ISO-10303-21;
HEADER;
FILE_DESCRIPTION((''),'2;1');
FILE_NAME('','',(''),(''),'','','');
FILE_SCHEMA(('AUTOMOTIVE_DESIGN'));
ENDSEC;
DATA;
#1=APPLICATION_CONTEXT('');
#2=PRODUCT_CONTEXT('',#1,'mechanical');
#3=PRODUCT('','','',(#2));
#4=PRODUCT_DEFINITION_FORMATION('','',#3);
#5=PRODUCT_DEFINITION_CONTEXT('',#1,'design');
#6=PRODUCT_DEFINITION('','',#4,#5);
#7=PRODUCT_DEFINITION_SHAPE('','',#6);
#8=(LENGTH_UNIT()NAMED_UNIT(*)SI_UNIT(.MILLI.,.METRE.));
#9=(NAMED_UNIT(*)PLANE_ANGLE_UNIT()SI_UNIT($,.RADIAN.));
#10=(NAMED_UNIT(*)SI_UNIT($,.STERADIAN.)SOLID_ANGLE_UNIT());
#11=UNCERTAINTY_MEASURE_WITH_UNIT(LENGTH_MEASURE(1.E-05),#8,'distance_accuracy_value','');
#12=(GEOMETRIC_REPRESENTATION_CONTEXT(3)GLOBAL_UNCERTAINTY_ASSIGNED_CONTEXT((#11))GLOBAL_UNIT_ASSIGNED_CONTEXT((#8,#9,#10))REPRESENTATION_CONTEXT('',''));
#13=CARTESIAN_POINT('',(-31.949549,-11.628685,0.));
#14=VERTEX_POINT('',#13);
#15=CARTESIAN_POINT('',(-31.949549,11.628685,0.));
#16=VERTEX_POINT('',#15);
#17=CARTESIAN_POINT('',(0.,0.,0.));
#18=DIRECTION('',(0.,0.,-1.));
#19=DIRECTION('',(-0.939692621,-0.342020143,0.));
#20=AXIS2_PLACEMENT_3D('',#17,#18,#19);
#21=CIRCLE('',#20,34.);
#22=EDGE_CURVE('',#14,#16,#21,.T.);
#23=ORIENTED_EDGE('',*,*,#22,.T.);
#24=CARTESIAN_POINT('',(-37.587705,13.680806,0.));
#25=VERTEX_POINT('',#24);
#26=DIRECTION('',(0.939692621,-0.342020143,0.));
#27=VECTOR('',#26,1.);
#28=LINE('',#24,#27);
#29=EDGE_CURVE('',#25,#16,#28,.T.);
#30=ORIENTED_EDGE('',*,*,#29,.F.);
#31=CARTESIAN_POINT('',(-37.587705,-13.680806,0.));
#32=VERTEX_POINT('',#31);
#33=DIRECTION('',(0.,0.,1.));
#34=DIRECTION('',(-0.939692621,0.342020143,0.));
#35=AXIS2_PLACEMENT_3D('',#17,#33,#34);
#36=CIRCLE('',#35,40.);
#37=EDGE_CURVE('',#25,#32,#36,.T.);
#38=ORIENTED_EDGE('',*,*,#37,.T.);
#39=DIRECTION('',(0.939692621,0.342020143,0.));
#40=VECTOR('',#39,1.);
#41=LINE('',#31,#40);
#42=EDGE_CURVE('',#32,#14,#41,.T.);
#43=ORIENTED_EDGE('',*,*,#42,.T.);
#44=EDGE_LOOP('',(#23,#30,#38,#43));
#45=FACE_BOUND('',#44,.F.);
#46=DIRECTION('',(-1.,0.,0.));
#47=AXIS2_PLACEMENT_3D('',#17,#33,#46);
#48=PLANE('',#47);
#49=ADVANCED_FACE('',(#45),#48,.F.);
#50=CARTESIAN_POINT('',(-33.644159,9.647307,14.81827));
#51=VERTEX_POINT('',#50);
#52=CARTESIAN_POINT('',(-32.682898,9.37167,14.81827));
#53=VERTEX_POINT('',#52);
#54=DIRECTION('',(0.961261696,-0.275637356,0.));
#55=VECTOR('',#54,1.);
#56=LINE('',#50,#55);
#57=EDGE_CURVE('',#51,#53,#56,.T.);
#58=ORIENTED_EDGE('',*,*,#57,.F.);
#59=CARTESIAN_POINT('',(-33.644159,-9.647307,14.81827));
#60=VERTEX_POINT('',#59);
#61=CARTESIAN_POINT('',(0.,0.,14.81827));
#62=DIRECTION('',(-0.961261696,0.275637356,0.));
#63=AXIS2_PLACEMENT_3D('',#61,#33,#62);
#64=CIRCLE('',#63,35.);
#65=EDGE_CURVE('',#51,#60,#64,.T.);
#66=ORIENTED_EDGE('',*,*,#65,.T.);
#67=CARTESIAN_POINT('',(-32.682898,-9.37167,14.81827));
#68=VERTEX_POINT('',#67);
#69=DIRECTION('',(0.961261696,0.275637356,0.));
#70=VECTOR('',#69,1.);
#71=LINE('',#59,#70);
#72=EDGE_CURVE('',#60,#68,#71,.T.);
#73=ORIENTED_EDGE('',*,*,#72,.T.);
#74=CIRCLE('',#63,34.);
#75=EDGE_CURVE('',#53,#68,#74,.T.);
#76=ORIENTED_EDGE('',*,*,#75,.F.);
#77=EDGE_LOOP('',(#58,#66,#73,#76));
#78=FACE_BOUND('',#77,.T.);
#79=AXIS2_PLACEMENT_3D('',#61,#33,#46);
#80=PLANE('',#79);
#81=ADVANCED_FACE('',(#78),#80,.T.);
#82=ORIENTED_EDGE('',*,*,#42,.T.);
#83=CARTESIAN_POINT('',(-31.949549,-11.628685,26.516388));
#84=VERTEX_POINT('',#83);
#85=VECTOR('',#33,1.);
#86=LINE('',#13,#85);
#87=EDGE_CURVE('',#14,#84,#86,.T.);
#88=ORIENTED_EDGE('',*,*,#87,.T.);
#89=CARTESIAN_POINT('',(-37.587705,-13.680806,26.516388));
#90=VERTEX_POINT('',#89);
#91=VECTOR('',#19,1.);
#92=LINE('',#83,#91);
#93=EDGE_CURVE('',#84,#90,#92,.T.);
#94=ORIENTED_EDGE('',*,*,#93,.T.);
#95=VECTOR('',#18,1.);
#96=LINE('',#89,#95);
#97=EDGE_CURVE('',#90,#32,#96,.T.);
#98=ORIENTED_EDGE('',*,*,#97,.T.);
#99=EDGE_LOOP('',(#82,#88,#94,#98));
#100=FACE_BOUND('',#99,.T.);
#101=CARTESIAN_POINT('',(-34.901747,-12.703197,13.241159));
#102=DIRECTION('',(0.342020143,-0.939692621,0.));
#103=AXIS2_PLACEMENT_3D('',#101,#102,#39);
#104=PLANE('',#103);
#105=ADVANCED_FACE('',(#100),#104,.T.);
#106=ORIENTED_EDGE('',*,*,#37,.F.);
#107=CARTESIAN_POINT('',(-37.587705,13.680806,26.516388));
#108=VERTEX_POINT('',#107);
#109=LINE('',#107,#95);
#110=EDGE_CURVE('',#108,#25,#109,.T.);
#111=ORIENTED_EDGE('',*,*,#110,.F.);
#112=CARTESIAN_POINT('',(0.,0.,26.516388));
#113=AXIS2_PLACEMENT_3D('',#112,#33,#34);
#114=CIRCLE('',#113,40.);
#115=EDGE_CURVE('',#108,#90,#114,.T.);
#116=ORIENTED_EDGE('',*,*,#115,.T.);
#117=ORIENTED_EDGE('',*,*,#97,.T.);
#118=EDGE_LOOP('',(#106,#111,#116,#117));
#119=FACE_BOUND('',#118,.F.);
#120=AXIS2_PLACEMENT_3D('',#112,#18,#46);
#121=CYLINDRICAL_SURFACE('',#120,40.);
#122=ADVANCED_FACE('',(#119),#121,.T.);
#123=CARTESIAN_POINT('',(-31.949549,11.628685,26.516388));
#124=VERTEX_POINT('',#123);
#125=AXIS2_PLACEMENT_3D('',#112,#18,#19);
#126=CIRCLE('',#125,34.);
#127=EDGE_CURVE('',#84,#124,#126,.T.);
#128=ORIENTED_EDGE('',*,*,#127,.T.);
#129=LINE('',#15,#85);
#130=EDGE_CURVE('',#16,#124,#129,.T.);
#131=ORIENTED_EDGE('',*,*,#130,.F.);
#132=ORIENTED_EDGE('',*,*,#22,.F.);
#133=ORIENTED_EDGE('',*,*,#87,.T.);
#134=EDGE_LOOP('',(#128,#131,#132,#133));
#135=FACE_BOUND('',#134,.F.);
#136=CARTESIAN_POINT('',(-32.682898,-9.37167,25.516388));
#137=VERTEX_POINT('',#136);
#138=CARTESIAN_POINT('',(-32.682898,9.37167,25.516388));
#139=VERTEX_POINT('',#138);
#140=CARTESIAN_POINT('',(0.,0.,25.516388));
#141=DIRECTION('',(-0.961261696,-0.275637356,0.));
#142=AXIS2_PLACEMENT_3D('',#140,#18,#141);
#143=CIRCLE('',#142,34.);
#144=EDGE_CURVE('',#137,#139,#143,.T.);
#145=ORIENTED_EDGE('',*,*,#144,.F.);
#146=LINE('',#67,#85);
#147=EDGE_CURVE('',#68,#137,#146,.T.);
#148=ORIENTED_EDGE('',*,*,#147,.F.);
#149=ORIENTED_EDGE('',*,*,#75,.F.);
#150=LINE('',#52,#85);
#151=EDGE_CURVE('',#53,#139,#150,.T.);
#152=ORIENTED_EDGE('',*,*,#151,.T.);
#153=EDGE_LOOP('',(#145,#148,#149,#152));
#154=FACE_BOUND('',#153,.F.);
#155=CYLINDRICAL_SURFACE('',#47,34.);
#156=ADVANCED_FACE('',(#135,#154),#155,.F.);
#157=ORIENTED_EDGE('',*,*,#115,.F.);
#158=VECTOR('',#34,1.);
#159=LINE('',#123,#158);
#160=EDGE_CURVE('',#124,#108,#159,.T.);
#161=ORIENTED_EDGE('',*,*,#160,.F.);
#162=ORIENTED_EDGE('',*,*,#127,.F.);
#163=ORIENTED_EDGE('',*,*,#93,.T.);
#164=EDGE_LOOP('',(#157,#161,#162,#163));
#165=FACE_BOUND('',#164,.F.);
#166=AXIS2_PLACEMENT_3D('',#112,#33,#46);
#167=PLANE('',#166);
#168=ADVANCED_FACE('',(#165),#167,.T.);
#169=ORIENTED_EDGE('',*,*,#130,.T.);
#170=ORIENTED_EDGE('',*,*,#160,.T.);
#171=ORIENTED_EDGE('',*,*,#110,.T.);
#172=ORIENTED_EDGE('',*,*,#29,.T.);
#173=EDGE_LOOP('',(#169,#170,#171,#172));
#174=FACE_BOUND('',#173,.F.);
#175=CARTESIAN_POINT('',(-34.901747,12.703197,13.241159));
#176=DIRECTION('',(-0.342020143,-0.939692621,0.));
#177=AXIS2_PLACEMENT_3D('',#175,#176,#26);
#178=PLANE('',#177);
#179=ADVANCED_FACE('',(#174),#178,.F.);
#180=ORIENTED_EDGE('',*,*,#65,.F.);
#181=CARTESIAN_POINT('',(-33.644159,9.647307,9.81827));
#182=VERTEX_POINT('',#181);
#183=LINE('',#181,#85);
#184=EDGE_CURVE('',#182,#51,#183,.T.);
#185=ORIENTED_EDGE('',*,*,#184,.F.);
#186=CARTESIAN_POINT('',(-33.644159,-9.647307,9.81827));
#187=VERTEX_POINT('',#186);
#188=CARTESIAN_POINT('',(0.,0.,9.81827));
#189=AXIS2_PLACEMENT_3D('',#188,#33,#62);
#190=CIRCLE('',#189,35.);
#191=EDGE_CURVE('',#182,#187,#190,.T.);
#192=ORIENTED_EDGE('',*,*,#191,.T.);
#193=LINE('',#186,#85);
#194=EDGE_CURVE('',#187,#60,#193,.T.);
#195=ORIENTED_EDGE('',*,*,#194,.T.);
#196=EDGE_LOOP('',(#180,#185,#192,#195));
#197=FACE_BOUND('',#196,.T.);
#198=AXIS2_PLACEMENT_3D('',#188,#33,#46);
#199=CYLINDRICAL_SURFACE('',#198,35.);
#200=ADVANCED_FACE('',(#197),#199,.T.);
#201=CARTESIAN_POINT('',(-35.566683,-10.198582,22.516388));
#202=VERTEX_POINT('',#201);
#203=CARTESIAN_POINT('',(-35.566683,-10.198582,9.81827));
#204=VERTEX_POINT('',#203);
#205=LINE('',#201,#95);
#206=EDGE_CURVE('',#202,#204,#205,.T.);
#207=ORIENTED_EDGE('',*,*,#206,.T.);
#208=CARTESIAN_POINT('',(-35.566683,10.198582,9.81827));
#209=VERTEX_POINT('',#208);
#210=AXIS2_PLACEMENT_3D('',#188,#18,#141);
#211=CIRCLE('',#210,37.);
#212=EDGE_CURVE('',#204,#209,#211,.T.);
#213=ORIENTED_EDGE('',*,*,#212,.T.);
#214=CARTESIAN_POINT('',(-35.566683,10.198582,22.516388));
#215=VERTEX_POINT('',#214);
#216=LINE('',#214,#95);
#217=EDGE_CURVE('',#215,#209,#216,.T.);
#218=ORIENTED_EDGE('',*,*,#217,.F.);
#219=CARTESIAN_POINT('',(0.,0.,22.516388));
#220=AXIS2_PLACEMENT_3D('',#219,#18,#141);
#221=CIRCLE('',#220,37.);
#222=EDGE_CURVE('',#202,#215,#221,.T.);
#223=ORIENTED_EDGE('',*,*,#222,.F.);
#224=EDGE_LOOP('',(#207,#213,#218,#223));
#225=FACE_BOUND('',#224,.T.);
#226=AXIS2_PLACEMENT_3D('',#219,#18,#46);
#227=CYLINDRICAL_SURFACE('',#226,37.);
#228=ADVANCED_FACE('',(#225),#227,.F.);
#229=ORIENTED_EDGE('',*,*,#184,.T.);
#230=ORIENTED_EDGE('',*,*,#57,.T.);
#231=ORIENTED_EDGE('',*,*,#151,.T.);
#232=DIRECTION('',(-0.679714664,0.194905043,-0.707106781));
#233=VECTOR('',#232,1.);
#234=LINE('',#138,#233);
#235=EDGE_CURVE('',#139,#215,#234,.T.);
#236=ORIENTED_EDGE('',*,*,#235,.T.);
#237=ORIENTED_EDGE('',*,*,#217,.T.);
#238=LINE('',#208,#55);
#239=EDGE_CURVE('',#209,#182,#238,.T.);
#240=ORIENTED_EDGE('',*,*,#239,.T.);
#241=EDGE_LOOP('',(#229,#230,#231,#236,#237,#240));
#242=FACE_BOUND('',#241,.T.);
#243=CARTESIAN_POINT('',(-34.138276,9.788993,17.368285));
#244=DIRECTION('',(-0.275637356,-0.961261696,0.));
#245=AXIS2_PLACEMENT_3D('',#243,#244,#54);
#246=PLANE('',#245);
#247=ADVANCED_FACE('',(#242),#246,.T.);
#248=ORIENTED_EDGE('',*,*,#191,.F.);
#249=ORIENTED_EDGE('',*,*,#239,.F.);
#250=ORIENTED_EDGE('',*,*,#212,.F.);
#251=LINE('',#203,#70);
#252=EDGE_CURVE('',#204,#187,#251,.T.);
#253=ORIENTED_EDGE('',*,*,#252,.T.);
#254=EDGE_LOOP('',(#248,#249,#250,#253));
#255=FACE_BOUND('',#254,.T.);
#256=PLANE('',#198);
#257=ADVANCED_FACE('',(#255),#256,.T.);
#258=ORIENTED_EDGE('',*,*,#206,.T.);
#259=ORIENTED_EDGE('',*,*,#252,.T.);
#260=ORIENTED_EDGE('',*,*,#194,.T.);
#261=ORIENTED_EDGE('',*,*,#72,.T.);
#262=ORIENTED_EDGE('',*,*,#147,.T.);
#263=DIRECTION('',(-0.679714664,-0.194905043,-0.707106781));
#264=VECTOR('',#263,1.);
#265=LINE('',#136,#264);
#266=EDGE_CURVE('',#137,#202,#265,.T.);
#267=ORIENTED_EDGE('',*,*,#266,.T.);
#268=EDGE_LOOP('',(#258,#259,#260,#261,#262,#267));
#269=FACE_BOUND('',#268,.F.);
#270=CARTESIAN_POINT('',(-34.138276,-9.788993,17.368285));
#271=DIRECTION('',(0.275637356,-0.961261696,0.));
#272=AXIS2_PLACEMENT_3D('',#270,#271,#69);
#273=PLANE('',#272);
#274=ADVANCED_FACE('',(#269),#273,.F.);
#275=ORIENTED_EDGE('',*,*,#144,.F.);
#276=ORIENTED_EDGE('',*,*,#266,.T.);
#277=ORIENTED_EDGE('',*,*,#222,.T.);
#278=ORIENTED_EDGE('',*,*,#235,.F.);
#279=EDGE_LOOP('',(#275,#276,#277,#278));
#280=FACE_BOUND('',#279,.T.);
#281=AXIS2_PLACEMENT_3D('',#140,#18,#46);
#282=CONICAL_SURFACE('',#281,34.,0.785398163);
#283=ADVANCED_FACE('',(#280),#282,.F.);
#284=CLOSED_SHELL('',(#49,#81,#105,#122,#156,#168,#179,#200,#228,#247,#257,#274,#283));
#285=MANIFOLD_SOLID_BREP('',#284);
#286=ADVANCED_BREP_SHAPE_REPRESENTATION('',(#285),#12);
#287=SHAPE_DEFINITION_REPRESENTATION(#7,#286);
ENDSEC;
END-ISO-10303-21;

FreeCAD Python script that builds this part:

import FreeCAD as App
import Part
import Sketcher
from FreeCAD import Vector
Q = App.Units.Quantity


def add_polygon(sketch, points):
    """Adds a closed chain of lines whose ends are joined by coincident constraints."""
    first, n = sketch.GeometryCount, len(points)
    for a, b in zip(points, points[1:] + points[:1]):
        sketch.addGeometry(Part.LineSegment(App.Vector(*a, 0), App.Vector(*b, 0)), False)
    for i in range(n):
        sketch.addConstraint(Sketcher.Constraint("Coincident", first + i, 2, first + (i + 1) % n, 1))

doc = App.newDocument("Part")
body = doc.addObject("PartDesign::Body", "Body")

sketch1 = body.newObject("Sketcher::SketchObject", "Sketch")
sketch1.AttachmentSupport = (doc.getObject("XZ_Plane"), [""])
sketch1.MapMode = "FlatFace"
add_polygon(sketch1, [(-34, 27), (-40, 27), (-40, 0), (-34, 0)])
sketch1.addConstraint(Sketcher.Constraint("Horizontal", 0))
sketch1.addConstraint(Sketcher.Constraint("Vertical", 1))
sketch1.addConstraint(Sketcher.Constraint("Horizontal", 2))
sketch1.addConstraint(Sketcher.Constraint("Vertical", 3))
sketch1.addConstraint(Sketcher.Constraint("PointOnObject", 1, 2, -1))
sketch1.addConstraint(Sketcher.Constraint("DistanceX", 0, 2, 0, 1, Q("6 mm")))
sketch1.addConstraint(Sketcher.Constraint("DistanceX", 0, 2, -1, 1, Q("40 mm")))
sketch1.addConstraint(Sketcher.Constraint("DistanceY", 1, 2, 1, 1, Q("26.516388 mm")))
revolution = body.newObject("PartDesign::Revolution", "Revolution")
revolution.Profile = sketch1
revolution.ReferenceAxis = (sketch1, ["V_Axis"])
revolution.Angle = 20
revolution.Reversed = True

sketch2 = body.newObject("Sketcher::SketchObject", "Sketch001")
sketch2.AttachmentSupport = (doc.getObject("XZ_Plane"), [""])
sketch2.MapMode = "FlatFace"
add_polygon(sketch2, [(-34, 27), (-40, 27), (-40, 0), (-34, 0)])
sketch2.addConstraint(Sketcher.Constraint("Horizontal", 0))
sketch2.addConstraint(Sketcher.Constraint("Vertical", 1))
sketch2.addConstraint(Sketcher.Constraint("Horizontal", 2))
sketch2.addConstraint(Sketcher.Constraint("Vertical", 3))
sketch2.addConstraint(Sketcher.Constraint("PointOnObject", 1, 2, -1))
sketch2.addConstraint(Sketcher.Constraint("DistanceX", 0, 2, 0, 1, Q("6 mm")))
sketch2.addConstraint(Sketcher.Constraint("DistanceX", 0, 2, -1, 1, Q("40 mm")))
sketch2.addConstraint(Sketcher.Constraint("DistanceY", 1, 2, 1, 1, Q("26.516388 mm")))
revolution2 = body.newObject("PartDesign::Revolution", "Revolution001")
revolution2.Profile = sketch2
revolution2.ReferenceAxis = (sketch2, ["V_Axis"])
revolution2.Angle = 20

sketch3 = body.newObject("Sketcher::SketchObject", "Sketch002")
sketch3.AttachmentSupport = (doc.getObject("XZ_Plane"), [""])
sketch3.MapMode = "FlatFace"
add_polygon(sketch3, [(-34, 25.5), (-37, 22.5), (-37, 9.8), (-35, 9.8), (-35, 14.8), (-34, 14.8)])
sketch3.addConstraint(Sketcher.Constraint("Vertical", 1))
sketch3.addConstraint(Sketcher.Constraint("Horizontal", 2))
sketch3.addConstraint(Sketcher.Constraint("Vertical", 3))
sketch3.addConstraint(Sketcher.Constraint("Horizontal", 4))
sketch3.addConstraint(Sketcher.Constraint("Vertical", 5))
sketch3.addConstraint(Sketcher.Constraint("DistanceX", 2, 1, 2, 2, Q("2 mm")))
sketch3.addConstraint(Sketcher.Constraint("DistanceX", 4, 1, 4, 2, Q("1 mm")))
sketch3.addConstraint(Sketcher.Constraint("DistanceY", 3, 1, 3, 2, Q("5 mm")))
sketch3.addConstraint(Sketcher.Constraint("Angle", 0, Q("-135 deg")))
sketch3.addConstraint(Sketcher.Constraint("DistanceX", 0, 2, -1, 1, Q("37 mm")))
sketch3.addConstraint(Sketcher.Constraint("DistanceY", 1, 2, 1, 1, Q("12.698118 mm")))
sketch3.addConstraint(Sketcher.Constraint("DistanceY", -1, 1, 1, 2, Q("9.81827 mm")))
groove = body.newObject("PartDesign::Groove", "Groove")
groove.Profile = sketch3
groove.ReferenceAxis = (sketch3, ["V_Axis"])
groove.Angle = 16

sketch4 = body.newObject("Sketcher::SketchObject", "Sketch003")
sketch4.AttachmentSupport = (doc.getObject("XZ_Plane"), [""])
sketch4.MapMode = "FlatFace"
add_polygon(sketch4, [(-34, 25.5), (-37, 22.5), (-37, 9.8), (-35, 9.8), (-35, 14.8), (-34, 14.8)])
sketch4.addConstraint(Sketcher.Constraint("Vertical", 1))
sketch4.addConstraint(Sketcher.Constraint("Horizontal", 2))
sketch4.addConstraint(Sketcher.Constraint("Vertical", 3))
sketch4.addConstraint(Sketcher.Constraint("Horizontal", 4))
sketch4.addConstraint(Sketcher.Constraint("Vertical", 5))
sketch4.addConstraint(Sketcher.Constraint("DistanceX", 2, 1, 2, 2, Q("2 mm")))
sketch4.addConstraint(Sketcher.Constraint("DistanceX", 4, 1, 4, 2, Q("1 mm")))
sketch4.addConstraint(Sketcher.Constraint("DistanceY", 3, 1, 3, 2, Q("5 mm")))
sketch4.addConstraint(Sketcher.Constraint("Angle", 0, Q("-135 deg")))
sketch4.addConstraint(Sketcher.Constraint("DistanceX", 0, 2, -1, 1, Q("37 mm")))
sketch4.addConstraint(Sketcher.Constraint("DistanceY", 1, 2, 1, 1, Q("12.698118 mm")))
sketch4.addConstraint(Sketcher.Constraint("DistanceY", -1, 1, 1, 2, Q("9.81827 mm")))
groove2 = body.newObject("PartDesign::Groove", "Groove001")
groove2.Profile = sketch4
groove2.ReferenceAxis = (sketch4, ["V_Axis"])
groove2.Angle = 16
groove2.Reversed = True

doc.recompute()
